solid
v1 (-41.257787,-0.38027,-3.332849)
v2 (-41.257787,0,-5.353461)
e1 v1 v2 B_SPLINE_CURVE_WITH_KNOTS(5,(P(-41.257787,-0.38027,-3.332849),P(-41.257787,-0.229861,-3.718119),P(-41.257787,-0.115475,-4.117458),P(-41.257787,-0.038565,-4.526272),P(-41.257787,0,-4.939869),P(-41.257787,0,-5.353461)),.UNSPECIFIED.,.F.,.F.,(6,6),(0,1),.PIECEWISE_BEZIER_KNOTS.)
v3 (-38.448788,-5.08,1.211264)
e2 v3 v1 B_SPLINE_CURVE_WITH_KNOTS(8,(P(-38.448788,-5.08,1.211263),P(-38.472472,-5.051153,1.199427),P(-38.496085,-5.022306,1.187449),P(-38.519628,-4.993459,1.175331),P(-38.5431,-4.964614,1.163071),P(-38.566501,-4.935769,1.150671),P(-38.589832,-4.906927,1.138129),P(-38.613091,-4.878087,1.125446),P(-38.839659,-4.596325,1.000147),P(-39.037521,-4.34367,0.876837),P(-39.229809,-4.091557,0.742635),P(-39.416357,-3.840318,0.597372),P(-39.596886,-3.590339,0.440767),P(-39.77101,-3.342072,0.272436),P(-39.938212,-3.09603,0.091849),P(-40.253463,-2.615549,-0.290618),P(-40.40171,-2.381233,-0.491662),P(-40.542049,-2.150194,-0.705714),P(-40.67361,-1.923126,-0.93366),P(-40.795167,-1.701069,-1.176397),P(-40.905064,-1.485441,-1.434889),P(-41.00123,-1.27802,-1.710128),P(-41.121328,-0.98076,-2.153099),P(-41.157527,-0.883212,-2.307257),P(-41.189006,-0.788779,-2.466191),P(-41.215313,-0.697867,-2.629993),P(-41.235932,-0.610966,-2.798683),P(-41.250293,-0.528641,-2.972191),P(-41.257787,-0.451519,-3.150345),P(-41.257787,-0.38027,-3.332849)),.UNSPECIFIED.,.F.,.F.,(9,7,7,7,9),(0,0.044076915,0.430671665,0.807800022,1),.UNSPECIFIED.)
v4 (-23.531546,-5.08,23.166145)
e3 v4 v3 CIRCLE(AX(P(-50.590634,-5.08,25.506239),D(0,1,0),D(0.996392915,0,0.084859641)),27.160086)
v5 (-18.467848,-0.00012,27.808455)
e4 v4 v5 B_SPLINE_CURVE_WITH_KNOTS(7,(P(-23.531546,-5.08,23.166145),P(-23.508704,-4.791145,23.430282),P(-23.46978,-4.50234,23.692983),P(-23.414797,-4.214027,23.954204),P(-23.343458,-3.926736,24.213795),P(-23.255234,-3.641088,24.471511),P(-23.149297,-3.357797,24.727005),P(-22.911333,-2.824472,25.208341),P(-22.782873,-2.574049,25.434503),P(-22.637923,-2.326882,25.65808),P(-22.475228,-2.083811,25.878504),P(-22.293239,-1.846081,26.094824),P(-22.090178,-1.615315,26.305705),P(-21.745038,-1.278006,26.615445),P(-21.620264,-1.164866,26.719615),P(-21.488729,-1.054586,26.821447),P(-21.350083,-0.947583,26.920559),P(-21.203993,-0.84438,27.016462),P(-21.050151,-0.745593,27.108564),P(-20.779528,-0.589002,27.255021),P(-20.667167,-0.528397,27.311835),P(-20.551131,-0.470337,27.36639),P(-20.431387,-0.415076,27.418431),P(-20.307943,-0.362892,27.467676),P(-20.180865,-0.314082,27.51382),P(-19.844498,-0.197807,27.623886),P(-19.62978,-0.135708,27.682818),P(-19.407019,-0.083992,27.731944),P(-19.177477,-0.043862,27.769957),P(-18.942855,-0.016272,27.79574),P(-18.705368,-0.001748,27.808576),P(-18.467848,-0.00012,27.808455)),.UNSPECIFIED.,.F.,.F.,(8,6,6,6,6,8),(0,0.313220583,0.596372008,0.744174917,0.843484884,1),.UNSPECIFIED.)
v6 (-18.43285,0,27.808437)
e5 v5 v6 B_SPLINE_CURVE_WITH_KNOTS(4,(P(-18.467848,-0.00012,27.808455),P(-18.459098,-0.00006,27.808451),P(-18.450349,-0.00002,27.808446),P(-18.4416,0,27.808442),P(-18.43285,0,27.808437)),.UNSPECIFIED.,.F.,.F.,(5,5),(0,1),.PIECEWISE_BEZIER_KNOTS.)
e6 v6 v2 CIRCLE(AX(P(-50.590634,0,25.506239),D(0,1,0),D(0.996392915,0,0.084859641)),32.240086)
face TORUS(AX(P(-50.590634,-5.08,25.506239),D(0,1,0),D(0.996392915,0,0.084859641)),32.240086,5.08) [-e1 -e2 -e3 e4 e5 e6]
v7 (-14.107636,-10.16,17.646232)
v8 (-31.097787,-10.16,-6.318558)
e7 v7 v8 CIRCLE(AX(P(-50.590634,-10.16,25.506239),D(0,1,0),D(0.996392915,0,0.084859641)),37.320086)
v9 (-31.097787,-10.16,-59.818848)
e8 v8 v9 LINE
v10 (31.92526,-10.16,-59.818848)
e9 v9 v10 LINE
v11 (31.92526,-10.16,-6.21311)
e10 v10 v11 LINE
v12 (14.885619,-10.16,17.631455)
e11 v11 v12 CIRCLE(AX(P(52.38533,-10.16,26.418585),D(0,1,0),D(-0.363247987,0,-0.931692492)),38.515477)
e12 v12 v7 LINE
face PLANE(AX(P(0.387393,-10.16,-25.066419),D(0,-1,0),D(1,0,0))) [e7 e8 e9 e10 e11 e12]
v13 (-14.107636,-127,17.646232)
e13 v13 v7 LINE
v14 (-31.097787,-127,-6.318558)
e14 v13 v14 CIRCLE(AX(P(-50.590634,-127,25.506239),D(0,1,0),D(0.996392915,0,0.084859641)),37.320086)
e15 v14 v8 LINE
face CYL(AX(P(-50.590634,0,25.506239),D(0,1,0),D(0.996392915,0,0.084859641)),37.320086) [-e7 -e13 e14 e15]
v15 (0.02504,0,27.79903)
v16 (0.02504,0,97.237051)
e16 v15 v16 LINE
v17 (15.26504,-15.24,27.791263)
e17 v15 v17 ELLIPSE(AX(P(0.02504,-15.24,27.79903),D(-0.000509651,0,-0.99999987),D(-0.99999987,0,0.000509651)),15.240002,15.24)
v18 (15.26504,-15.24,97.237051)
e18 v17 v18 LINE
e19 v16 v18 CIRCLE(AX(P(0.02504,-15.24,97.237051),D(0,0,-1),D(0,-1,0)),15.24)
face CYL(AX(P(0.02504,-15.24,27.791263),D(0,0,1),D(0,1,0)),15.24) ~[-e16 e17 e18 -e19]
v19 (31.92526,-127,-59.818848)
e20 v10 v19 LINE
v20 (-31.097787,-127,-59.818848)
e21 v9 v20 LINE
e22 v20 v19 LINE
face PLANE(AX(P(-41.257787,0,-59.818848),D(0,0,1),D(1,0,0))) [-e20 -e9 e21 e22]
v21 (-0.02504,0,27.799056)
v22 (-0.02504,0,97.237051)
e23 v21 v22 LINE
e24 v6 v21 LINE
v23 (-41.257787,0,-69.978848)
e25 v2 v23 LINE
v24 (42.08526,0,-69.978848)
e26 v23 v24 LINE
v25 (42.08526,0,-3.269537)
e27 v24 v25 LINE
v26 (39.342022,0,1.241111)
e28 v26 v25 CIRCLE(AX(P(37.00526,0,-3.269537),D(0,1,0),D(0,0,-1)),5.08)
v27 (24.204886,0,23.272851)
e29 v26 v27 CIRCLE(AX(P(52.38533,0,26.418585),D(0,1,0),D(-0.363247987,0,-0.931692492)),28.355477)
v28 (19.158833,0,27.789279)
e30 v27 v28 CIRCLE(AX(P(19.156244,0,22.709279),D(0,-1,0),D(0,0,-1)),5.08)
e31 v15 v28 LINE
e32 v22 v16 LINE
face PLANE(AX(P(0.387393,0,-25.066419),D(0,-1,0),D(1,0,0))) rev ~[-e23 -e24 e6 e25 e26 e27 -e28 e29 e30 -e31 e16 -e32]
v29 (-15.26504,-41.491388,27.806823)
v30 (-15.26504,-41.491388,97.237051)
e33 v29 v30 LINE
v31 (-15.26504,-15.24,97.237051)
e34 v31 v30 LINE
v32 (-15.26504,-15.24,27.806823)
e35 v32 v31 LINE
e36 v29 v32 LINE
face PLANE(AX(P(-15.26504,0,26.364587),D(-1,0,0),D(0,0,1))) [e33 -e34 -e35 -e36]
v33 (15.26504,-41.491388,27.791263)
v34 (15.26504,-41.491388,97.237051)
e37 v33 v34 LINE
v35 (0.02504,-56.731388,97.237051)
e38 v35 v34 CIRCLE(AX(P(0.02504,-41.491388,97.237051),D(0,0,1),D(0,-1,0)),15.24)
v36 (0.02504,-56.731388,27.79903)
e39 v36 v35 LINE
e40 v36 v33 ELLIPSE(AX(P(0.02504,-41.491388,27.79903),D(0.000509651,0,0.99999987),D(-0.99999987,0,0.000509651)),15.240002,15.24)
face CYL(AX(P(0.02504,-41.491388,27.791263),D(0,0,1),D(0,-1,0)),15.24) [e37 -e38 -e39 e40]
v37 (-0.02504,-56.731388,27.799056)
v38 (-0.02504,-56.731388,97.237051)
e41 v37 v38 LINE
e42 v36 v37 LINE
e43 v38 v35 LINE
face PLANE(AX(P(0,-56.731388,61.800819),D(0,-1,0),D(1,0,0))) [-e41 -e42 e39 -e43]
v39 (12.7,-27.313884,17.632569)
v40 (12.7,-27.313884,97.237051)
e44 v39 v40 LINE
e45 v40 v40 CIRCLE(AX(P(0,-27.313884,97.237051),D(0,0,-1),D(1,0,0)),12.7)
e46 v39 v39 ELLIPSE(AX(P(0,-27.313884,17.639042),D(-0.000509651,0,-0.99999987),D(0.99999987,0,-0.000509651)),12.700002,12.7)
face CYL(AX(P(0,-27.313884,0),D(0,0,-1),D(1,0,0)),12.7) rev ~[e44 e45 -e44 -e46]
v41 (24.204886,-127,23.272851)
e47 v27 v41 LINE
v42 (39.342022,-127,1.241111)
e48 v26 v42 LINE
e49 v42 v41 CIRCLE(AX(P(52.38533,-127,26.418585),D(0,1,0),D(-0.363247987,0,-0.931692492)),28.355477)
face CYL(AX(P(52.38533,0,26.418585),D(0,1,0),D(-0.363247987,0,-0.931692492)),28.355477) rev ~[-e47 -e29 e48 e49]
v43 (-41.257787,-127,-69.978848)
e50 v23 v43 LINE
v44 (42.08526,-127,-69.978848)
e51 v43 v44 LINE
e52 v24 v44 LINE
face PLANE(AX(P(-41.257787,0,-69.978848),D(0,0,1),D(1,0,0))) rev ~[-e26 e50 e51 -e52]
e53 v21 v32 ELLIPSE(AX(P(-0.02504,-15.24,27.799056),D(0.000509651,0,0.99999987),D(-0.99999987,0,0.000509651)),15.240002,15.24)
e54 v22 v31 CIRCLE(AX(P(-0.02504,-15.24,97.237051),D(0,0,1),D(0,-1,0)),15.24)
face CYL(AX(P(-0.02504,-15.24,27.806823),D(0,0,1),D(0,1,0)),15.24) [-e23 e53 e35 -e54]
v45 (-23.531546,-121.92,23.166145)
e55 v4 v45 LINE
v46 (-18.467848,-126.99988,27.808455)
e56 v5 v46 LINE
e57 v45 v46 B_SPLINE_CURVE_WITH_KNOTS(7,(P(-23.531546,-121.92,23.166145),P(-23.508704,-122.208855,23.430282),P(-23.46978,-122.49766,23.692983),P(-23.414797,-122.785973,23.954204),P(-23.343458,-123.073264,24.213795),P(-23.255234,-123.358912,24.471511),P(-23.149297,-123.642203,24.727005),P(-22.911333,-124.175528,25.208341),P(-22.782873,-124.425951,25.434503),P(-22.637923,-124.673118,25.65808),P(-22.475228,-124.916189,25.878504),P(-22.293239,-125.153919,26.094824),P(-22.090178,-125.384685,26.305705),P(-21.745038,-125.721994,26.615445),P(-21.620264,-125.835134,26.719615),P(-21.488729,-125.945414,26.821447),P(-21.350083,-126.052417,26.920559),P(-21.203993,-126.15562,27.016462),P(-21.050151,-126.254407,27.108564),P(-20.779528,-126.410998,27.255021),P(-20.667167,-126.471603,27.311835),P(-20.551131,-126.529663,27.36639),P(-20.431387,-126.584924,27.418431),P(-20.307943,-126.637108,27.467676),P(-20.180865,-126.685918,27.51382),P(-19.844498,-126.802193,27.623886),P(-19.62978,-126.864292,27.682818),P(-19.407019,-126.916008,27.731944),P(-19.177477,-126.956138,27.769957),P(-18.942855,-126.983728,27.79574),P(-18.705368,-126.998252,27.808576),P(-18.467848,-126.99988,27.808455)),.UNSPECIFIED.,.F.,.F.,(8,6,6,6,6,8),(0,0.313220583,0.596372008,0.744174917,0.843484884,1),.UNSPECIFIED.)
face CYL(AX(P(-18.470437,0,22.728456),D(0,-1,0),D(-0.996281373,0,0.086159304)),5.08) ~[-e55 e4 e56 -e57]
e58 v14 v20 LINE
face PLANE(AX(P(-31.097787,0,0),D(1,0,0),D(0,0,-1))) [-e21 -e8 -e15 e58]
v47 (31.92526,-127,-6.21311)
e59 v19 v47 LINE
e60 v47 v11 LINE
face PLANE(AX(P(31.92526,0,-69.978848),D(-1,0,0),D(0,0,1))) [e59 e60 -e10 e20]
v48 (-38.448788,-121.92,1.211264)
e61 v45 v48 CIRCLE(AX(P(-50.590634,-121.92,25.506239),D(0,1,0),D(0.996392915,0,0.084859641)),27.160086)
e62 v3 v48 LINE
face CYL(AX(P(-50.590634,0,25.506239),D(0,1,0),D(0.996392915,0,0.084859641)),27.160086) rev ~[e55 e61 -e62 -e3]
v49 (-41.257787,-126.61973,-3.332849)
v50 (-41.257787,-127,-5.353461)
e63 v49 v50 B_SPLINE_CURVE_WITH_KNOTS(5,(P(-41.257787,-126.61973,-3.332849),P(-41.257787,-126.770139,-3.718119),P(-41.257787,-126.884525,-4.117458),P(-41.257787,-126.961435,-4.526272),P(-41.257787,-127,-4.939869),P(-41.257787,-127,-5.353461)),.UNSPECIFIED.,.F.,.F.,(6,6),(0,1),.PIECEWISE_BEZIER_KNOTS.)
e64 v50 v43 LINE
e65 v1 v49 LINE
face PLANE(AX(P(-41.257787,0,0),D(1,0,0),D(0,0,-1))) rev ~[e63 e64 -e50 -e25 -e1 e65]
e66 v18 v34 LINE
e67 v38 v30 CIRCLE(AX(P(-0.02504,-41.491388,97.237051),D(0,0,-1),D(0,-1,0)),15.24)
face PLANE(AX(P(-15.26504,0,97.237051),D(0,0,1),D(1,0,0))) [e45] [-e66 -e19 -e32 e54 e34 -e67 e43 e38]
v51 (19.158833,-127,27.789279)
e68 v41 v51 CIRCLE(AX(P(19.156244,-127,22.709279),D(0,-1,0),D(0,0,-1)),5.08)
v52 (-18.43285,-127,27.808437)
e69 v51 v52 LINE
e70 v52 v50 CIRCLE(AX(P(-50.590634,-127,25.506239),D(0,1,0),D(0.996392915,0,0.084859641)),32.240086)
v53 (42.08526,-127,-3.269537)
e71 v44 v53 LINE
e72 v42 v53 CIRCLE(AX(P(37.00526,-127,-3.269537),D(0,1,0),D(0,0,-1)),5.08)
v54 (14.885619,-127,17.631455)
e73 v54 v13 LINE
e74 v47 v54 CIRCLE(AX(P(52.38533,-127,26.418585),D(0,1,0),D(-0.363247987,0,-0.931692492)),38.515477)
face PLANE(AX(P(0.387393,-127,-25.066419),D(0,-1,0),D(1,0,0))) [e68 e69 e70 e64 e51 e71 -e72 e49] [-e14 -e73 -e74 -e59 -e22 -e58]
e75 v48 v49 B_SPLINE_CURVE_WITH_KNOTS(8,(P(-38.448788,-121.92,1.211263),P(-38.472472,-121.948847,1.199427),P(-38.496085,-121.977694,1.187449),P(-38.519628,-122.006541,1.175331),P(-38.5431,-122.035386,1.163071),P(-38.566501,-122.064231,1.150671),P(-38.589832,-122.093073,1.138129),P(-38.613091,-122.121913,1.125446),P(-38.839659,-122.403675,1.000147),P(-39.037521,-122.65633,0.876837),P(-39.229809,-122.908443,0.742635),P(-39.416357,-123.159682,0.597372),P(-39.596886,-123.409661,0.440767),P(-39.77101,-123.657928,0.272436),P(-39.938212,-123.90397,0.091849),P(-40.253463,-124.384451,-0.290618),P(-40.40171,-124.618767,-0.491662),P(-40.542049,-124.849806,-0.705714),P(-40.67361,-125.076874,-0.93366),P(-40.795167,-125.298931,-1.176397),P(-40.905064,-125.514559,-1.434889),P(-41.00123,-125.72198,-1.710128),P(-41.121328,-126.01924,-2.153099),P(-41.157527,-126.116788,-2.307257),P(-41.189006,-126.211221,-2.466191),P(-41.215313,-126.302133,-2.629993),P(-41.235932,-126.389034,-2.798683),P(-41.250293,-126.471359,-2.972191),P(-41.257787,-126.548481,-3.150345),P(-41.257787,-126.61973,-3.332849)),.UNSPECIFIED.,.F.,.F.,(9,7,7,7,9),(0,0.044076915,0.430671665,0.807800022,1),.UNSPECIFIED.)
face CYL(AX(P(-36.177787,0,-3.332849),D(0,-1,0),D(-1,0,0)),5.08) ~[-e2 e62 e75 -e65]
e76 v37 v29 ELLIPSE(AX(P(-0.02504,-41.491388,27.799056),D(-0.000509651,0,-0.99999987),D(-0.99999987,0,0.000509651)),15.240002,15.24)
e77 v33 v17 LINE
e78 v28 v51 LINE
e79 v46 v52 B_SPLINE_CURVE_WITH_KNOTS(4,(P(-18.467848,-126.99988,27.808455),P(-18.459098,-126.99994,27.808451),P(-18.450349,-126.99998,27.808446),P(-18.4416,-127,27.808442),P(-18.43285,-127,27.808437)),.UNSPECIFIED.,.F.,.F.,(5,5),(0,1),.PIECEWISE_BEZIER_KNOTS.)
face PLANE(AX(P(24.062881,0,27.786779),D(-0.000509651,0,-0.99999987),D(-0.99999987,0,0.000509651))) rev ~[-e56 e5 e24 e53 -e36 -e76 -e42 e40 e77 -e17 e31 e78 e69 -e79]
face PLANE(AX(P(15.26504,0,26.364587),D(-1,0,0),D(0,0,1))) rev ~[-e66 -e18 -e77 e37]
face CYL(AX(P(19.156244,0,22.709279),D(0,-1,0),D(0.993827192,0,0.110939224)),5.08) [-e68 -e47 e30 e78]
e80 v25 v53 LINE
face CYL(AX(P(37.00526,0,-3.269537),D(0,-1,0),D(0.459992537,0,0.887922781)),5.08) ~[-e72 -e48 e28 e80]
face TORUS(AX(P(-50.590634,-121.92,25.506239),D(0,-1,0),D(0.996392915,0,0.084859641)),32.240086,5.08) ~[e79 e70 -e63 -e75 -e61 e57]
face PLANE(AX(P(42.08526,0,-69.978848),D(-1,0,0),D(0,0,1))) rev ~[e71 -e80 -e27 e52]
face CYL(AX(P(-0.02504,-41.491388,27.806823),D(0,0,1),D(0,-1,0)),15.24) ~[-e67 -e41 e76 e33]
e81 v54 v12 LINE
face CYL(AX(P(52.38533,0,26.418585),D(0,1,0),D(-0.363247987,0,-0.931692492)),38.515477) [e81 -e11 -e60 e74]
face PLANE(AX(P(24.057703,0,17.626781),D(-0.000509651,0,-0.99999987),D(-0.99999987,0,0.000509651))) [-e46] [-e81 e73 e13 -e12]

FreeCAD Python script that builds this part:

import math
import FreeCAD as App
import Part
import Sketcher

V = App.Vector
Q = App.Units.Quantity


def edges_at(feature, points):
    """Names of the edges that pass closest to the given points."""
    edges = feature.Shape.Edges
    near = lambda p: min(range(len(edges)), key=lambda i: edges[i].distToShape(Part.Vertex(*p))[0])
    return sorted({f"Edge{near(p) + 1}" for p in points})


def faces_at(feature, points):
    """Names of the faces that lie closest to the given points."""
    faces = feature.Shape.Faces
    near = lambda p: min(range(len(faces)), key=lambda i: faces[i].distToShape(Part.Vertex(*p))[0])
    return sorted({f"Face{near(p) + 1}" for p in points})


def add_polygon(sketch, points):
    """Adds a closed chain of lines whose ends are joined by coincident constraints."""
    first, n = sketch.GeometryCount, len(points)
    for a, b in zip(points, points[1:] + points[:1]):
        sketch.addGeometry(Part.LineSegment(App.Vector(*a, 0), App.Vector(*b, 0)), False)
    for i in range(n):
        sketch.addConstraint(Sketcher.Constraint("Coincident", first + i, 2, first + (i + 1) % n, 1))

doc = App.newDocument("Part")
body = doc.addObject("PartDesign::Body", "Body")

# Sketch on XZ plane
sketch1 = body.newObject("Sketcher::SketchObject", "Sketch")
sketch1.AttachmentSupport = (doc.getObject("XZ_Plane"), [""])
sketch1.MapMode = "FlatFace"
sketch1.addGeometry(Part.LineSegment(V(-41, 0, 0), V(-41, -70, 0)), False)
sketch1.addGeometry(Part.LineSegment(V(-41, -70, 0), V(42, -70, 0)), False)
sketch1.addGeometry(Part.LineSegment(V(42, -70, 0), V(42, 0, 0)), False)
sketch1.addGeometry(Part.ArcOfCircle(Part.Circle(V(52, 26, 0), V(0, 0, 1), 28), math.radians(177), math.radians(249)), False)
sketch1.addGeometry(Part.LineSegment(V(24, 28, 0), V(-24, 28, 0)), False)
sketch1.addGeometry(Part.ArcOfCircle(Part.Circle(V(-51, 26, 0), V(0, 0, 1), 27), math.radians(-70), math.radians(5)), False)
sketch1.addConstraint(Sketcher.Constraint("Coincident", 0, 2, 1, 1))
sketch1.addConstraint(Sketcher.Constraint("Coincident", 1, 2, 2, 1))
sketch1.addConstraint(Sketcher.Constraint("Coincident", 2, 2, 3, 2))
sketch1.addConstraint(Sketcher.Constraint("Coincident", 3, 1, 4, 1))
sketch1.addConstraint(Sketcher.Constraint("Coincident", 4, 2, 5, 2))
sketch1.addConstraint(Sketcher.Constraint("Coincident", 5, 1, 0, 1))
sketch1.addConstraint(Sketcher.Constraint("Vertical", 0))
sketch1.addConstraint(Sketcher.Constraint("Horizontal", 1))
sketch1.addConstraint(Sketcher.Constraint("Vertical", 2))
sketch1.addConstraint(Sketcher.Constraint("PointOnObject", 2, 2, -1))
sketch1.addConstraint(Sketcher.Constraint("PointOnObject", 5, 1, -1))
sketch1.addConstraint(Sketcher.Constraint("DistanceX", -1, 1, 1, 2, Q("1.6569 in")))
sketch1.addConstraint(Sketcher.Constraint("Radius", 3, 28.355477))
sketch1.addConstraint(Sketcher.Constraint("Radius", 5, 27.160086))
sketch1.addConstraint(Sketcher.Constraint("DistanceY", 0, 2, 0, 1, 69.978848))
sketch1.addConstraint(Sketcher.Constraint("DistanceX", 1, 1, 1, 2, 83.343047))
sketch1.addConstraint(Sketcher.Constraint("DistanceX", -1, 1, 3, 3, 52.38533))
sketch1.addConstraint(Sketcher.Constraint("DistanceY", -1, 1, 5, 3, 25.506239))
sketch1.addConstraint(Sketcher.Constraint("DistanceX", -1, 1, 3, 1, 24.062881))
sketch1.addConstraint(Sketcher.Constraint("DistanceY", 3, 3, 4, 2, 1.392449))
pad1 = body.newObject("PartDesign::Pad", "Pad")
pad1.Profile = sketch1
pad1.Length = Q("5 in")
doc.recompute()

thickness = body.newObject("PartDesign::Thickness", "Thickness")
thickness.Base = (pad1, faces_at(pad1, [(0.414, -127, -21.084)]))
thickness.Value = Q("0.4 in")
thickness.Reversed = True
thickness.Join = "Arc"

# Sketch on XY plane
sketch2 = body.newObject("Sketcher::SketchObject", "Sketch001")
sketch2.AttachmentSupport = (doc.getObject("XY_Plane"), [""])
sketch2.MapMode = "FlatFace"
sketch2.addGeometry(Part.Circle(V(0, -27, 0), V(0, 0, 1), 13), False)
sketch2.addConstraint(Sketcher.Constraint("PointOnObject", 0, 3, -2))
sketch2.addConstraint(Sketcher.Constraint("Diameter", 0, Q("1 in")))
sketch2.addConstraint(Sketcher.Constraint("DistanceY", 0, 3, -1, 1, 27.313884))
pocket1 = body.newObject("PartDesign::Pocket", "Pocket")
pocket1.Profile = sketch2
pocket1.Type = "ThroughAll"
pocket1.Reversed = True

# Sketch on XZ plane
sketch3 = body.newObject("Sketcher::SketchObject", "Sketch002")
sketch3.AttachmentSupport = (doc.getObject("XZ_Plane"), [""])
sketch3.MapMode = "FlatFace"
add_polygon(sketch3, [(-15, 97), (-15, 26), (15, 26), (15, 97)])  # lines 0-3
sketch3.addConstraint(Sketcher.Constraint("Vertical", 0))
sketch3.addConstraint(Sketcher.Constraint("Horizontal", 1))
sketch3.addConstraint(Sketcher.Constraint("Vertical", 2))
sketch3.addConstraint(Sketcher.Constraint("Horizontal", 3))
sketch3.addConstraint(Sketcher.Constraint("DistanceX", 1, 1, 1, 2, 30.53008))
sketch3.addConstraint(Sketcher.Constraint("DistanceY", 0, 2, 0, 1, 70.872463))
sketch3.addConstraint(Sketcher.Constraint("DistanceX", 0, 2, -1, 1, 15.26504))
sketch3.addConstraint(Sketcher.Constraint("DistanceY", -1, 1, 2, 2, 97.237051))
pad2 = body.newObject("PartDesign::Pad", "Pad001")
pad2.Profile = sketch3
pad2.Length = 56.731388

# Sketch on XY plane
sketch4 = body.newObject("Sketcher::SketchObject", "Sketch003")
sketch4.AttachmentSupport = (doc.getObject("XY_Plane"), [""])
sketch4.MapMode = "FlatFace"
sketch4.addGeometry(Part.Circle(V(0, -27, 0), V(0, 0, 1), 13), False)
sketch4.addConstraint(Sketcher.Constraint("PointOnObject", 0, 3, -2))
sketch4.addConstraint(Sketcher.Constraint("Diameter", 0, Q("1 in")))
sketch4.addConstraint(Sketcher.Constraint("DistanceY", 0, 3, -1, 1, 27.313884))
pocket2 = body.newObject("PartDesign::Pocket", "Pocket001")
pocket2.Profile = sketch4
pocket2.Type = "ThroughAll"
pocket2.Reversed = True
doc.recompute()

fillet = body.newObject("PartDesign::Fillet", "Fillet")
fillet.Base = (pocket2, edges_at(pocket2, [
    (15.265, 0, 62.514),
    (-15.265, 0, 62.522),
    (15.265, -56.731, 62.514),
    (-15.265, -56.731, 62.522),
]))
fillet.Radius = Q("0.6 in")
doc.recompute()

fillet2 = body.newObject("PartDesign::Fillet", "Fillet001")
fillet2.Base = (fillet, edges_at(fillet, [
    (42.085, -63.5, 0),
    (24.063, -63.5, 27.787),
    (-23.529, -63.5, 27.811),
    (-41.258, -63.5, 0),
    (-27.688, 0, 10.906),
    (-27.688, -127, 10.906),
]))
fillet2.Radius = Q("0.2 in")

doc.recompute()
